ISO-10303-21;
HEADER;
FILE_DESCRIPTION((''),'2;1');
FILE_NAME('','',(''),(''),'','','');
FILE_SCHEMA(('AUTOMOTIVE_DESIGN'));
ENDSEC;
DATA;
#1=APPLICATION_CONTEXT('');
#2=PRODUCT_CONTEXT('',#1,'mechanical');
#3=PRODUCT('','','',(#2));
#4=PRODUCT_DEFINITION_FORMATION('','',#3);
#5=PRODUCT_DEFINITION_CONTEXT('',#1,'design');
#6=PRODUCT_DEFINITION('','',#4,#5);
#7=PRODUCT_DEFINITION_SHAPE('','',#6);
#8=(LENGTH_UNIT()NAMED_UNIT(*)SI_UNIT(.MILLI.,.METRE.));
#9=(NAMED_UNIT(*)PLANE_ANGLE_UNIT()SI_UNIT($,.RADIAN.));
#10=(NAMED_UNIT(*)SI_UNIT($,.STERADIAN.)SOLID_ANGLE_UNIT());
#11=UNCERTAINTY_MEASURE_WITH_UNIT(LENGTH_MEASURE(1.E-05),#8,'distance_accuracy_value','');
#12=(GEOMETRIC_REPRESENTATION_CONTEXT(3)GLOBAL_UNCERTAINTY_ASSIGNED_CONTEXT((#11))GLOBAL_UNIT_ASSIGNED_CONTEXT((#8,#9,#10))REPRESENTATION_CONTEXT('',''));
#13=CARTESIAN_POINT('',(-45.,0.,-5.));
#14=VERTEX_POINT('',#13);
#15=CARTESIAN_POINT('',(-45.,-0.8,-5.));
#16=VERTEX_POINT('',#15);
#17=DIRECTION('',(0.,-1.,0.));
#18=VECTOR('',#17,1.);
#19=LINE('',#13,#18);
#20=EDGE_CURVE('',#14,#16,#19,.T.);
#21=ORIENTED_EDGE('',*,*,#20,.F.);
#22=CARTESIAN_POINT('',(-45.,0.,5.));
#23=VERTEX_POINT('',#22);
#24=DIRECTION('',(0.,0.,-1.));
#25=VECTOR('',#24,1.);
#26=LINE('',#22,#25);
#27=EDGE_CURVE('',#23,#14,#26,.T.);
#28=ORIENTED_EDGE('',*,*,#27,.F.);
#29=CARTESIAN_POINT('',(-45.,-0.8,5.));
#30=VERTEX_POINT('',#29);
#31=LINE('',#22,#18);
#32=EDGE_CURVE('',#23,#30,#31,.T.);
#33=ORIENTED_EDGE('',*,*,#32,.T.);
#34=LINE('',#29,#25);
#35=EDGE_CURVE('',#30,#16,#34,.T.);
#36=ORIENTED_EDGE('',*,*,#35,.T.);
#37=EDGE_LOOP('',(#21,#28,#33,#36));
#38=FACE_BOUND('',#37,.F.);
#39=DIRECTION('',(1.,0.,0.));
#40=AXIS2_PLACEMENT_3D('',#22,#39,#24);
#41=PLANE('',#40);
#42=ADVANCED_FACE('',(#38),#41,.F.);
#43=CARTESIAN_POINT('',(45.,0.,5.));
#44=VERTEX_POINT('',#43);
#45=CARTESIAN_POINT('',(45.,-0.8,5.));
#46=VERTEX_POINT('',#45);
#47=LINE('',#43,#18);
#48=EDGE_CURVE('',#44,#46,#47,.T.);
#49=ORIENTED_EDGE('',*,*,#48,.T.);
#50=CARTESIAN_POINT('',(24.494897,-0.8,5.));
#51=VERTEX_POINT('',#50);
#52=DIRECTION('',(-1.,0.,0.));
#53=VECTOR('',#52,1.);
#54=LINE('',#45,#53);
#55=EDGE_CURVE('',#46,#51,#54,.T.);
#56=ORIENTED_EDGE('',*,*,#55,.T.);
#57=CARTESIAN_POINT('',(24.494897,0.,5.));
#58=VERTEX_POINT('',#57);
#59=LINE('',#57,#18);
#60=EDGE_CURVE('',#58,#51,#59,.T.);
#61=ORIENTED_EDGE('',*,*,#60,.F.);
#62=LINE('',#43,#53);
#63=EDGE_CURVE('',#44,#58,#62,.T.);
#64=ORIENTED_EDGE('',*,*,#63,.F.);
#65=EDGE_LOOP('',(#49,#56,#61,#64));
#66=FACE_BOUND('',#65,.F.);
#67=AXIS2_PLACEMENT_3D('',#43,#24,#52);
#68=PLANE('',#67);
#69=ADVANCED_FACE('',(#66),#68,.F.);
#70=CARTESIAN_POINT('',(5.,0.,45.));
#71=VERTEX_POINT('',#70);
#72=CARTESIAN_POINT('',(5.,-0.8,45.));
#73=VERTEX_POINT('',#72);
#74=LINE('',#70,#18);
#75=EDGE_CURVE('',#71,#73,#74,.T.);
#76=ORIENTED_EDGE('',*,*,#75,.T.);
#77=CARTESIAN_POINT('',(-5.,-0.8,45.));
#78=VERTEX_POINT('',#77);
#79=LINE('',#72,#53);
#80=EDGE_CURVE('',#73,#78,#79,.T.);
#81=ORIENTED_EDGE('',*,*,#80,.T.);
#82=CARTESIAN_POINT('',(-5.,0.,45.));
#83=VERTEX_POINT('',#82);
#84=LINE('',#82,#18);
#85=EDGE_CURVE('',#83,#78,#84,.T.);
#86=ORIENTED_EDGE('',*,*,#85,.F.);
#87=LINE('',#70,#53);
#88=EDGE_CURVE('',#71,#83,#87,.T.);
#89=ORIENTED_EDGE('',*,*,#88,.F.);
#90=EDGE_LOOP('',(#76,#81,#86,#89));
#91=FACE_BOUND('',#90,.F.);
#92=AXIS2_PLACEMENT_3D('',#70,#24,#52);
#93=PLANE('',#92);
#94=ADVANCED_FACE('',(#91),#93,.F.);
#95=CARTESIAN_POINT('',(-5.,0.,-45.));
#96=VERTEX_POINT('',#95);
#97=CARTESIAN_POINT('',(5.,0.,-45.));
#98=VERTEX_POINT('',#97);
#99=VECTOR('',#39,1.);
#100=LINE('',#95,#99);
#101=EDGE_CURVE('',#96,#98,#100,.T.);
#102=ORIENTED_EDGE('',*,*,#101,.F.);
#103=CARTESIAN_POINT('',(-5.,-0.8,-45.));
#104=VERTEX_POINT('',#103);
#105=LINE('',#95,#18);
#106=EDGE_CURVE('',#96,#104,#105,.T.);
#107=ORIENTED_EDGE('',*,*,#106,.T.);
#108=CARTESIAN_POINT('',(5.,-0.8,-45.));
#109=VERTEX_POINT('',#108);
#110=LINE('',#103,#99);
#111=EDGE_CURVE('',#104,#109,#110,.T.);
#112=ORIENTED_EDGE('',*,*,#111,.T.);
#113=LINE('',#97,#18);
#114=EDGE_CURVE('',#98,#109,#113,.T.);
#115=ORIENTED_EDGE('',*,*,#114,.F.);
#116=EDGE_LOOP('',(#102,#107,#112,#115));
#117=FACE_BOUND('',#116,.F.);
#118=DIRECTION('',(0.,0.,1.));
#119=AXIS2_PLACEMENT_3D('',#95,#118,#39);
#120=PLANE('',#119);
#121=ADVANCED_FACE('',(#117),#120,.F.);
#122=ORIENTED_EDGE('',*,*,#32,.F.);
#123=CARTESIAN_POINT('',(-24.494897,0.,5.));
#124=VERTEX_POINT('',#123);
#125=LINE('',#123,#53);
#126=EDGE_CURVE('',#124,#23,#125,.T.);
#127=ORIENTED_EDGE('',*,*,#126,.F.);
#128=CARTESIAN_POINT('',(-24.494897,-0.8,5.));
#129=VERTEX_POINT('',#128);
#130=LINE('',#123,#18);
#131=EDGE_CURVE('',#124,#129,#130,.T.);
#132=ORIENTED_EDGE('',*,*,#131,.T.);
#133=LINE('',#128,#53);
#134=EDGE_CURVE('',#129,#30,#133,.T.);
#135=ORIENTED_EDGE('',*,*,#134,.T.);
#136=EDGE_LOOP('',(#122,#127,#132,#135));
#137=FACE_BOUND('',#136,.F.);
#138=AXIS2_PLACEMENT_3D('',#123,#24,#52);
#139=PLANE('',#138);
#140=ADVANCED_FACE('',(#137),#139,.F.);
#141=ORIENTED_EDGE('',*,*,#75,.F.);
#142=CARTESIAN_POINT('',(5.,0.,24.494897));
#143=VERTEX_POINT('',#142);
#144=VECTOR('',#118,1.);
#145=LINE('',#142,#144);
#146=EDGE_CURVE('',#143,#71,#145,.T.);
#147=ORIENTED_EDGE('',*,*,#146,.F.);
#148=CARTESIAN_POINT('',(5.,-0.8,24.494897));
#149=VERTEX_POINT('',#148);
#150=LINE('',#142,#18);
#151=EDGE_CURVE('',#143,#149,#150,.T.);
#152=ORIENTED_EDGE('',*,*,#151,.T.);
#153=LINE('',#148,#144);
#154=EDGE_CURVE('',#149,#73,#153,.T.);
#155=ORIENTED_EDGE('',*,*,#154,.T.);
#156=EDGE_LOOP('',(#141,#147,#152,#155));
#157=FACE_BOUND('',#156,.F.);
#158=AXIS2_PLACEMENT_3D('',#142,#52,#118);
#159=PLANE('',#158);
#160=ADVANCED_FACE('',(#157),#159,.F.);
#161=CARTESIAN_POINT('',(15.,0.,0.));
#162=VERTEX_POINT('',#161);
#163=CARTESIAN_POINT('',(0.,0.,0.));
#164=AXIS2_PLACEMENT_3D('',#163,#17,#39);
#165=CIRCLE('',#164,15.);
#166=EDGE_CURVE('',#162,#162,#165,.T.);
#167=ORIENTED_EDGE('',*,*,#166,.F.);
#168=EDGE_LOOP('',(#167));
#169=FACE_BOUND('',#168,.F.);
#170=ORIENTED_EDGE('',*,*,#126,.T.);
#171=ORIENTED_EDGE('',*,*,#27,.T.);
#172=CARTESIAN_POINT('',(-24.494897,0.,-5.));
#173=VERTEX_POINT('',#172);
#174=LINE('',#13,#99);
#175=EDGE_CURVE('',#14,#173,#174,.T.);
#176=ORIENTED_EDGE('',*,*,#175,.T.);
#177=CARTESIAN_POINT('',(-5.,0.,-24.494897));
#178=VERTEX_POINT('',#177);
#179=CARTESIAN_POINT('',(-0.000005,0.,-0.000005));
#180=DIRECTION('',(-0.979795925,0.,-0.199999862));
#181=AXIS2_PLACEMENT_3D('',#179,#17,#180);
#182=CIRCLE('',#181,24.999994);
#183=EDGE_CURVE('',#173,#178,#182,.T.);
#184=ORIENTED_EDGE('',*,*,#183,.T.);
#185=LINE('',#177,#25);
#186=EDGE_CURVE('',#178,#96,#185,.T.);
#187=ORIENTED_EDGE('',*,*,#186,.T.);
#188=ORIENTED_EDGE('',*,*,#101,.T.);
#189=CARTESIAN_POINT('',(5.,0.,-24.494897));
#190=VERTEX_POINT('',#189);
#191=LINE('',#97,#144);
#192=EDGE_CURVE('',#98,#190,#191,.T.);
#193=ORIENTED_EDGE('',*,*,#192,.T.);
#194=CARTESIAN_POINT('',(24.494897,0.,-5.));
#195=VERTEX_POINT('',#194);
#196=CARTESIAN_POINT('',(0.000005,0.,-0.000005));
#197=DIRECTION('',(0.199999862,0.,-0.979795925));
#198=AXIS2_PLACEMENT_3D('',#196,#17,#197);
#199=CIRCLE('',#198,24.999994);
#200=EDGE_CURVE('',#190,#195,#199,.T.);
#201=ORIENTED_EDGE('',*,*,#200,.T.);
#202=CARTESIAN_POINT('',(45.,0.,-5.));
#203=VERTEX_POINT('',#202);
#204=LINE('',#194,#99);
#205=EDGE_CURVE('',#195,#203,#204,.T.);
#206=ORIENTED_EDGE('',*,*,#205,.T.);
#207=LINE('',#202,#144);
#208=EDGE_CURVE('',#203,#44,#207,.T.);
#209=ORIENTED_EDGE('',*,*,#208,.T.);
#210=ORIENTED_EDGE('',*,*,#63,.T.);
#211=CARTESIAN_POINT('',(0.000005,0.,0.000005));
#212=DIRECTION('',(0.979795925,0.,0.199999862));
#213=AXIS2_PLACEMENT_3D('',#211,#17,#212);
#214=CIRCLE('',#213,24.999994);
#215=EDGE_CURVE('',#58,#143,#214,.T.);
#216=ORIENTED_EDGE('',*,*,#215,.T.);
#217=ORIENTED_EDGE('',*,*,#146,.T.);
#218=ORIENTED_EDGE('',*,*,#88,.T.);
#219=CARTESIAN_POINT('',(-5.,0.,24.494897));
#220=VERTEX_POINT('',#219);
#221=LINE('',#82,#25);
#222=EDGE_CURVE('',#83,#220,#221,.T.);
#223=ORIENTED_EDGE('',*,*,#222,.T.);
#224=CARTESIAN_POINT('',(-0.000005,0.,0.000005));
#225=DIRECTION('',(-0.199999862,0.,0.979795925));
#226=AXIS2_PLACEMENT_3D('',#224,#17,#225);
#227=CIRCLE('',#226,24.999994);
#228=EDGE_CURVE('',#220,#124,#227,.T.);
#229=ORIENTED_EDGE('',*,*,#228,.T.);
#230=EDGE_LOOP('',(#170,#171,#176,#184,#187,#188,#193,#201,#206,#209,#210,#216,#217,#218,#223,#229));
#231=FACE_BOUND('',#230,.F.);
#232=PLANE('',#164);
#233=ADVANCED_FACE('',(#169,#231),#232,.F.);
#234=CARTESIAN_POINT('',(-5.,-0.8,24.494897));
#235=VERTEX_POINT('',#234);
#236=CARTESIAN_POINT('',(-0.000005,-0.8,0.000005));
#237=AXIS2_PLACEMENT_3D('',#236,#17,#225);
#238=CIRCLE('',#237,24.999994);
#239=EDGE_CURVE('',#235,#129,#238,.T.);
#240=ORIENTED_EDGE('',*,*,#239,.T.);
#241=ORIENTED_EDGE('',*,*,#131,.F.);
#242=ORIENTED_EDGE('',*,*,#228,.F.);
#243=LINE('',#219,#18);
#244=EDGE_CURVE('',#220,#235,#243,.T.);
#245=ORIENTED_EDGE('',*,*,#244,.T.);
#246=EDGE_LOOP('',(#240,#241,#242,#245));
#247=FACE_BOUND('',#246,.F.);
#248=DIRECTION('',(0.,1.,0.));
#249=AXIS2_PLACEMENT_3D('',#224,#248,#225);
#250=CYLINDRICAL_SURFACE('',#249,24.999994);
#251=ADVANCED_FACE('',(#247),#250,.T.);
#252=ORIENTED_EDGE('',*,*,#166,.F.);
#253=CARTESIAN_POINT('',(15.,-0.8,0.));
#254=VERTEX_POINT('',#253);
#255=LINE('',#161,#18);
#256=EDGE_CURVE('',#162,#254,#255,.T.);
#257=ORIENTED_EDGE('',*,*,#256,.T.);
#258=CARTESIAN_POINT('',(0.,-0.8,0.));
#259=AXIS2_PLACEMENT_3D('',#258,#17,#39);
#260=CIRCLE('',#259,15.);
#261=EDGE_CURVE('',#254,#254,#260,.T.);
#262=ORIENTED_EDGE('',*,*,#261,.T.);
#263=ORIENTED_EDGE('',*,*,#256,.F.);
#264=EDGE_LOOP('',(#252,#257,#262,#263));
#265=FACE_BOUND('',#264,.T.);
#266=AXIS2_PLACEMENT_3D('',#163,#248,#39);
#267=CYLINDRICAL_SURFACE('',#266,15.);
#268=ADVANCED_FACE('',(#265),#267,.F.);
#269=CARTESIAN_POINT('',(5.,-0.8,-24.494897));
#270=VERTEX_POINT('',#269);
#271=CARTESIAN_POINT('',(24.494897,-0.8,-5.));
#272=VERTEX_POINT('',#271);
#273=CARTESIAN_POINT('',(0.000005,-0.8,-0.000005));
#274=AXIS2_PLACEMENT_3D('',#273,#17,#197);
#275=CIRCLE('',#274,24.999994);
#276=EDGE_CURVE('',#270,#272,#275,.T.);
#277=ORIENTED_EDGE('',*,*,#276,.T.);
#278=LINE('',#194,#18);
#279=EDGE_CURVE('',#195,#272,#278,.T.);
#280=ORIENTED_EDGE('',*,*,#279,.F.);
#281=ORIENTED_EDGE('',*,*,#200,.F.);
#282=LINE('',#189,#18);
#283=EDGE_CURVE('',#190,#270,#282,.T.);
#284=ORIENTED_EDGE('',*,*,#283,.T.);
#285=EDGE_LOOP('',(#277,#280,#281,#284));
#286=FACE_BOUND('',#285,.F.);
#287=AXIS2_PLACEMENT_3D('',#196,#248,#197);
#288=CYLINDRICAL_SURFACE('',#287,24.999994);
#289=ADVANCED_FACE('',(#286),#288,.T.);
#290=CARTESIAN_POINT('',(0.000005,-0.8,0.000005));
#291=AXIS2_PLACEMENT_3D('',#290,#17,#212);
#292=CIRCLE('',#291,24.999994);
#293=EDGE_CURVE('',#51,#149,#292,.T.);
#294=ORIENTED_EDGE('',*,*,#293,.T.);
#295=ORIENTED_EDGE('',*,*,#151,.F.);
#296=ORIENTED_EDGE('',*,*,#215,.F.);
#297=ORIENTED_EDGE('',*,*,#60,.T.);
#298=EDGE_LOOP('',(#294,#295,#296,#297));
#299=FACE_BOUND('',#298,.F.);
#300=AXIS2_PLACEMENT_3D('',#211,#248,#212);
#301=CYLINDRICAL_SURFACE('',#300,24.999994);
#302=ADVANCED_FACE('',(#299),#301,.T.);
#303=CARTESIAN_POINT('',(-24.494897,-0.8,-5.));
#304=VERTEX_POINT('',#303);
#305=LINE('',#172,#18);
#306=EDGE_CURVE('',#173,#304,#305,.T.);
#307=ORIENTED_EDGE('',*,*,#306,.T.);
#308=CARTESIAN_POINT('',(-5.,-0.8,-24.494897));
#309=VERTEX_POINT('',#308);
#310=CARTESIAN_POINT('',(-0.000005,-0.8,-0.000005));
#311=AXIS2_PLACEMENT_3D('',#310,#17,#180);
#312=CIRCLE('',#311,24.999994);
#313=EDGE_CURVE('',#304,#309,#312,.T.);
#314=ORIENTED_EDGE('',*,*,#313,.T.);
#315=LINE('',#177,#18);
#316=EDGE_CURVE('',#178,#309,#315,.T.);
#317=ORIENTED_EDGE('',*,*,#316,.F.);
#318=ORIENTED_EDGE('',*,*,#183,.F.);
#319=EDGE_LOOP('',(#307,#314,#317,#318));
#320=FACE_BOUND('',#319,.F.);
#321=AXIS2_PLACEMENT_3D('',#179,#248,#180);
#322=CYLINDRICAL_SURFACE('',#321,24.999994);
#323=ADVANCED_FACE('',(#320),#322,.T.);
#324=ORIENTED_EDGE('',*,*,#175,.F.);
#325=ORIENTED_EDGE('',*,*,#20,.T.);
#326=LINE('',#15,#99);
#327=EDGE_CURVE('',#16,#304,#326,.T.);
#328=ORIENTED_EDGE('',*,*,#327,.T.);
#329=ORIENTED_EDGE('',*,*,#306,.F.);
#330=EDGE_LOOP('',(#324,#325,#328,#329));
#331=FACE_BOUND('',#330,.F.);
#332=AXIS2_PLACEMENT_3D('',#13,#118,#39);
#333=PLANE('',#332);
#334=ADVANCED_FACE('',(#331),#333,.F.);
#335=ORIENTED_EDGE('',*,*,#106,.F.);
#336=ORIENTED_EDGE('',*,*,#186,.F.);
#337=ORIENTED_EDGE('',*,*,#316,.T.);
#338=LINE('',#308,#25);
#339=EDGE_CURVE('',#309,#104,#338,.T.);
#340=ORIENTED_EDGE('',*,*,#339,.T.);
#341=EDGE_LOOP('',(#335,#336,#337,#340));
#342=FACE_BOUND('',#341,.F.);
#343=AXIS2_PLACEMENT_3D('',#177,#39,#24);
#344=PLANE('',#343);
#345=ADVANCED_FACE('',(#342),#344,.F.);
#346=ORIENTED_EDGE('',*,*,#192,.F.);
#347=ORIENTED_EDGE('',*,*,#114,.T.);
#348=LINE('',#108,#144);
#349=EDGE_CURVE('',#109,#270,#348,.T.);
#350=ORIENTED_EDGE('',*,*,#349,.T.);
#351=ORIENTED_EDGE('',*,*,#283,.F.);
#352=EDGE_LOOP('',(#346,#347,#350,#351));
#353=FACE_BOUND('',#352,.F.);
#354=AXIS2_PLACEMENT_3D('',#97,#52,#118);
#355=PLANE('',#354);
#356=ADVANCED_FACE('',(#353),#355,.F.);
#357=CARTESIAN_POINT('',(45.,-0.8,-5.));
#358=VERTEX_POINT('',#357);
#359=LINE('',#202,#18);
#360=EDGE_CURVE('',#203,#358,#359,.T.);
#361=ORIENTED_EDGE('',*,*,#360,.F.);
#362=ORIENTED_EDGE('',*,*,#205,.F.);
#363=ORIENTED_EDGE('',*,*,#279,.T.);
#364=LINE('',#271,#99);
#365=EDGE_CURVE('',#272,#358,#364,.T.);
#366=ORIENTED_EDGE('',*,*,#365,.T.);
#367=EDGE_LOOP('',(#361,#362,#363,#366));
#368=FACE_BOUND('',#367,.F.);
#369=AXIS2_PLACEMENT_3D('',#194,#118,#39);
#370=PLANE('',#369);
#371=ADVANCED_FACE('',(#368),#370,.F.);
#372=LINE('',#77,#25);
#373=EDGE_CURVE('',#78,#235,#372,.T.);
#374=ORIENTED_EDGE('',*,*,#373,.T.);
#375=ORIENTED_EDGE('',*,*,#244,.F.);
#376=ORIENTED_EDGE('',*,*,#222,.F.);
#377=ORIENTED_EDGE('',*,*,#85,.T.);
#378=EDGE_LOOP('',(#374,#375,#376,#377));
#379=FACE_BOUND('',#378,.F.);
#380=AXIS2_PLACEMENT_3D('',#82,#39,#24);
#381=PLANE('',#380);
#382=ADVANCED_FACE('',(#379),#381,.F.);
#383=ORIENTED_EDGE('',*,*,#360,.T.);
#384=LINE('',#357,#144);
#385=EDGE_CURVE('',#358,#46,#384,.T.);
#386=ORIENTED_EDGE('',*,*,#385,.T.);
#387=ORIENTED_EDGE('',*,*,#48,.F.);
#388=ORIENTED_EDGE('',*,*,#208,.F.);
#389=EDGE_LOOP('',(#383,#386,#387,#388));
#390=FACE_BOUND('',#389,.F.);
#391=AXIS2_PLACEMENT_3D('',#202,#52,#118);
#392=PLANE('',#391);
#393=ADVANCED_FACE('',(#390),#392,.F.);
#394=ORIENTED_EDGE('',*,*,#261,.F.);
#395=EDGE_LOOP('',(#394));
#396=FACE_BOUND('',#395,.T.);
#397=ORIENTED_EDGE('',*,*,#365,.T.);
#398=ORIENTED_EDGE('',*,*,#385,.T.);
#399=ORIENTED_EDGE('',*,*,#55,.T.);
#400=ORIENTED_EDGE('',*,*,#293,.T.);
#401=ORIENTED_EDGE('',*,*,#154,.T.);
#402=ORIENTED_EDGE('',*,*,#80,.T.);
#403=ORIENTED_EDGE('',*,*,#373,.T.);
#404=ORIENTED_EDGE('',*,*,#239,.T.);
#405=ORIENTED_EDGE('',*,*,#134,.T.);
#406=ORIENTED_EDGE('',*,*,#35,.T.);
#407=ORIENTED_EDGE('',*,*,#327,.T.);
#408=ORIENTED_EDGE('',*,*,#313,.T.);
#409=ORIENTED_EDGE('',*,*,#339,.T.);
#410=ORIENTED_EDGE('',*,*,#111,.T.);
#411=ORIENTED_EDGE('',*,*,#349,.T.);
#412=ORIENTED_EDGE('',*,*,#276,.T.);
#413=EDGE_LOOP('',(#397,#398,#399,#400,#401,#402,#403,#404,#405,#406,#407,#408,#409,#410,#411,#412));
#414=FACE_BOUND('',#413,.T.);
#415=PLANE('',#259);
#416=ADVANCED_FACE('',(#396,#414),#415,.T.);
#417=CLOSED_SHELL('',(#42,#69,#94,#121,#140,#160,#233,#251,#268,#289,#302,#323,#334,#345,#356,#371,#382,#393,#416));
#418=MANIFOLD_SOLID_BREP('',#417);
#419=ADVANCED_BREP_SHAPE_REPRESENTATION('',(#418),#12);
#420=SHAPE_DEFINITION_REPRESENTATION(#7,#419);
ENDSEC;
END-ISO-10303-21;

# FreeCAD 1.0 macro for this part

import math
import FreeCAD as App
import Part
import Sketcher
Q = App.Units.Quantity

doc = App.newDocument("Part")
body = doc.addObject("PartDesign::Body", "Body")

# Sketch on XZ plane
sketch1 = body.newObject("Sketcher::SketchObject", "Sketch")
sketch1.AttachmentSupport = (doc.getObject("XZ_Plane"), [""])
sketch1.MapMode = "FlatFace"
sketch1.addGeometry(Part.LineSegment(App.Vector(-45, -5, 0), App.Vector(-24, -5, 0)), False)
sketch1.addGeometry(Part.ArcOfCircle(Part.Circle(App.Vector(0, 0, 0), App.Vector(0, 0, 1), 25), math.radians(-168), math.radians(-102)), False)
sketch1.addGeometry(Part.LineSegment(App.Vector(-5, -24, 0), App.Vector(-5, -45, 0)), False)
sketch1.addGeometry(Part.LineSegment(App.Vector(-5, -45, 0), App.Vector(5, -45, 0)), False)
sketch1.addGeometry(Part.LineSegment(App.Vector(5, -45, 0), App.Vector(5, -24, 0)), False)
sketch1.addGeometry(Part.ArcOfCircle(Part.Circle(App.Vector(0, 0, 0), App.Vector(0, 0, 1), 25), math.radians(-78), math.radians(-12)), False)
sketch1.addGeometry(Part.LineSegment(App.Vector(24, -5, 0), App.Vector(45, -5, 0)), False)
sketch1.addGeometry(Part.LineSegment(App.Vector(45, -5, 0), App.Vector(45, 5, 0)), False)
sketch1.addGeometry(Part.LineSegment(App.Vector(45, 5, 0), App.Vector(24, 5, 0)), False)
sketch1.addGeometry(Part.ArcOfCircle(Part.Circle(App.Vector(0, 0, 0), App.Vector(0, 0, 1), 25), math.radians(12), math.radians(78)), False)
sketch1.addGeometry(Part.LineSegment(App.Vector(5, 24, 0), App.Vector(5, 45, 0)), False)
sketch1.addGeometry(Part.LineSegment(App.Vector(5, 45, 0), App.Vector(-5, 45, 0)), False)
sketch1.addGeometry(Part.LineSegment(App.Vector(-5, 45, 0), App.Vector(-5, 24, 0)), False)
sketch1.addGeometry(Part.ArcOfCircle(Part.Circle(App.Vector(0, 0, 0), App.Vector(0, 0, 1), 25), math.radians(102), math.radians(168)), False)
sketch1.addGeometry(Part.LineSegment(App.Vector(-24, 5, 0), App.Vector(-45, 5, 0)), False)
sketch1.addGeometry(Part.LineSegment(App.Vector(-45, 5, 0), App.Vector(-45, -5, 0)), False)
sketch1.addGeometry(Part.Circle(App.Vector(0, 0, 0), App.Vector(0, 0, 1), 15), False)
sketch1.addConstraint(Sketcher.Constraint("Coincident", 0, 2, 1, 1))
sketch1.addConstraint(Sketcher.Constraint("Coincident", 1, 2, 2, 1))
sketch1.addConstraint(Sketcher.Constraint("Coincident", 2, 2, 3, 1))
sketch1.addConstraint(Sketcher.Constraint("Coincident", 3, 2, 4, 1))
sketch1.addConstraint(Sketcher.Constraint("Coincident", 4, 2, 5, 1))
sketch1.addConstraint(Sketcher.Constraint("Coincident", 5, 2, 6, 1))
sketch1.addConstraint(Sketcher.Constraint("Coincident", 6, 2, 7, 1))
sketch1.addConstraint(Sketcher.Constraint("Coincident", 7, 2, 8, 1))
sketch1.addConstraint(Sketcher.Constraint("Coincident", 8, 2, 9, 1))
sketch1.addConstraint(Sketcher.Constraint("Coincident", 9, 2, 10, 1))
sketch1.addConstraint(Sketcher.Constraint("Coincident", 10, 2, 11, 1))
sketch1.addConstraint(Sketcher.Constraint("Coincident", 11, 2, 12, 1))
sketch1.addConstraint(Sketcher.Constraint("Coincident", 12, 2, 13, 1))
sketch1.addConstraint(Sketcher.Constraint("Coincident", 13, 2, 14, 1))
sketch1.addConstraint(Sketcher.Constraint("Coincident", 14, 2, 15, 1))
sketch1.addConstraint(Sketcher.Constraint("Coincident", 15, 2, 0, 1))
sketch1.addConstraint(Sketcher.Constraint("Horizontal", 0))
sketch1.addConstraint(Sketcher.Constraint("Vertical", 2))
sketch1.addConstraint(Sketcher.Constraint("Horizontal", 3))
sketch1.addConstraint(Sketcher.Constraint("Vertical", 4))
sketch1.addConstraint(Sketcher.Constraint("Horizontal", 6))
sketch1.addConstraint(Sketcher.Constraint("Vertical", 7))
sketch1.addConstraint(Sketcher.Constraint("Horizontal", 8))
sketch1.addConstraint(Sketcher.Constraint("Vertical", 10))
sketch1.addConstraint(Sketcher.Constraint("Horizontal", 11))
sketch1.addConstraint(Sketcher.Constraint("Vertical", 12))
sketch1.addConstraint(Sketcher.Constraint("Horizontal", 14))
sketch1.addConstraint(Sketcher.Constraint("Vertical", 15))
sketch1.addConstraint(Sketcher.Constraint("Coincident", 1, 3, -1, 1))
sketch1.addConstraint(Sketcher.Constraint("Coincident", 5, 3, -1, 1))
sketch1.addConstraint(Sketcher.Constraint("Coincident", 9, 3, -1, 1))
sketch1.addConstraint(Sketcher.Constraint("Coincident", 13, 3, -1, 1))
sketch1.addConstraint(Sketcher.Constraint("Coincident", 16, 3, -1, 1))
sketch1.addConstraint(Sketcher.Constraint("Equal", 1, 5))
sketch1.addConstraint(Sketcher.Constraint("Equal", 5, 9))
sketch1.addConstraint(Sketcher.Constraint("Equal", 9, 13))
sketch1.addConstraint(Sketcher.Constraint("Symmetric", 2, 2, 10, 2, -1, 1))
sketch1.addConstraint(Sketcher.Constraint("Symmetric", 6, 2, 14, 2, -1, 1))
sketch1.addConstraint(Sketcher.Constraint("Horizontal", 1, 2, 4, 2))
sketch1.addConstraint(Sketcher.Constraint("Horizontal", 0, 2, 5, 2))
sketch1.addConstraint(Sketcher.Constraint("Horizontal", 9, 2, 12, 2))
sketch1.addConstraint(Sketcher.Constraint("Horizontal", 8, 2, 13, 2))
sketch1.addConstraint(Sketcher.Constraint("Equal", 14, 2))
sketch1.addConstraint(Sketcher.Constraint("Equal", 11, 7))
sketch1.addConstraint(Sketcher.Constraint("Diameter", 16, Q("30 mm")))
sketch1.addConstraint(Sketcher.Constraint("DistanceX", 3, 1, 3, 2, Q("10 mm")))
sketch1.addConstraint(Sketcher.Constraint("DistanceY", 2, 2, -1, 1, Q("45 mm")))
sketch1.addConstraint(Sketcher.Constraint("Radius", 1, Q("24.999994 mm")))
pad1 = body.newObject("PartDesign::Pad", "Pad")
pad1.Profile = sketch1
pad1.Length = 0.8

doc.recompute()
